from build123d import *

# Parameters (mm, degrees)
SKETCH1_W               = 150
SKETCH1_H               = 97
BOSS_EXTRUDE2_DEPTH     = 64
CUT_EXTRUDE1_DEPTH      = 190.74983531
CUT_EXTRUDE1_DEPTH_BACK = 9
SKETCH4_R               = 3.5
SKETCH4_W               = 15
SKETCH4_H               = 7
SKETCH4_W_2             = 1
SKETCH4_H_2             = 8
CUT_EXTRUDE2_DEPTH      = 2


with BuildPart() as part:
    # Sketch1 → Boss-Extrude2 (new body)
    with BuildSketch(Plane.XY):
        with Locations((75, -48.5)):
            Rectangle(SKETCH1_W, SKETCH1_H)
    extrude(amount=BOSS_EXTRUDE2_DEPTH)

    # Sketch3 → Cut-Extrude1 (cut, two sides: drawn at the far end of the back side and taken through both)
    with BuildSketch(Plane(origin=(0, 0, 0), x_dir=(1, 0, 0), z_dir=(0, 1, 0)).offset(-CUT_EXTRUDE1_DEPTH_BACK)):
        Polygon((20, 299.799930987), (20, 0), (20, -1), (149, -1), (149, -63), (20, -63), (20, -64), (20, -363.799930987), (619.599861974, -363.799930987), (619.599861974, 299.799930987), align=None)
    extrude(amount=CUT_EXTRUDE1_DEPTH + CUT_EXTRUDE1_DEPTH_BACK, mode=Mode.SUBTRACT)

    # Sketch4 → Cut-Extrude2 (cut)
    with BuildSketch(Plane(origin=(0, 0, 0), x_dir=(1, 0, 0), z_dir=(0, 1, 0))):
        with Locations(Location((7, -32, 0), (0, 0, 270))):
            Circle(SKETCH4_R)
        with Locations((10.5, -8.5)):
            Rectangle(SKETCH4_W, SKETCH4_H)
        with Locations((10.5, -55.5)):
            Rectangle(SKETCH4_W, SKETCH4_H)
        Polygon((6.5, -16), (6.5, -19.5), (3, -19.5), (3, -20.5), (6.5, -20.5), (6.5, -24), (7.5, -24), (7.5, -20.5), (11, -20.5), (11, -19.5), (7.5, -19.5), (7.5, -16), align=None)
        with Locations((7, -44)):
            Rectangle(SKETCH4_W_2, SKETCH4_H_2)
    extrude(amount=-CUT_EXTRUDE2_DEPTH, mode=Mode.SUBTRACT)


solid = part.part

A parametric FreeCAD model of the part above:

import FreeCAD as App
import Part
import Sketcher

V = App.Vector
Q = App.Units.Quantity

doc = App.newDocument("Part")
body = doc.addObject("PartDesign::Body", "Body")

# Sketch on XY plane
sketch1 = body.newObject("Sketcher::SketchObject", "Sketch")
sketch1.AttachmentSupport = (doc.getObject("XY_Plane"), [""])
sketch1.MapMode = "FlatFace"
sketch1.addGeometry([
    Part.LineSegment(V(0, 0, 0), V(0, -97, 0)),
    Part.LineSegment(V(0, -97, 0), V(150, -97, 0)),
    Part.LineSegment(V(150, -97, 0), V(150, 0, 0)),
    Part.LineSegment(V(150, 0, 0), V(0, 0, 0)),
], False)
sketch1.addConstraint([
    Sketcher.Constraint("Coincident", 0, 2, 1, 1),
    Sketcher.Constraint("Coincident", 1, 2, 2, 1),
    Sketcher.Constraint("Coincident", 2, 2, 3, 1),
    Sketcher.Constraint("Coincident", 3, 2, 0, 1),
    Sketcher.Constraint("Vertical", 0),
    Sketcher.Constraint("Horizontal", 1),
    Sketcher.Constraint("Vertical", 2),
    Sketcher.Constraint("Horizontal", 3),
    Sketcher.Constraint("Coincident", 3, 2, -1, 1),
    Sketcher.Constraint("DistanceX", 1, 1, 1, 2, Q("150 mm")),
    Sketcher.Constraint("DistanceY", 0, 2, 0, 1, Q("97 mm")),
])
pad1 = body.newObject("PartDesign::Pad", "Pad")
pad1.Profile = sketch1
pad1.Length = 64

# Sketch on XZ plane
sketch2 = body.newObject("Sketcher::SketchObject", "Sketch001")
sketch2.AttachmentSupport = (doc.getObject("XZ_Plane"), [""])
sketch2.MapMode = "FlatFace"
sketch2.addGeometry([
    Part.LineSegment(V(20, -300, 0), V(20, 1, 0)),  # 0
    Part.LineSegment(V(20, 1, 0), V(149, 1, 0)),  # 1
    Part.LineSegment(V(149, 1, 0), V(149, 63, 0)),  # 2
    Part.LineSegment(V(149, 63, 0), V(20, 63, 0)),  # 3
    Part.LineSegment(V(20, 63, 0), V(20, 364, 0)),  # 4
    Part.LineSegment(V(20, 364, 0), V(620, 364, 0)),  # 5
    Part.LineSegment(V(620, 364, 0), V(620, -300, 0)),  # 6
    Part.LineSegment(V(620, -300, 0), V(20, -300, 0)),  # 7
], False)
sketch2.addConstraint([
    Sketcher.Constraint("Coincident", 0, 2, 1, 1),
    Sketcher.Constraint("Coincident", 1, 2, 2, 1),
    Sketcher.Constraint("Coincident", 2, 2, 3, 1),
    Sketcher.Constraint("Coincident", 3, 2, 4, 1),
    Sketcher.Constraint("Coincident", 4, 2, 5, 1),
    Sketcher.Constraint("Coincident", 5, 2, 6, 1),
    Sketcher.Constraint("Coincident", 6, 2, 7, 1),
    Sketcher.Constraint("Coincident", 7, 2, 0, 1),
    Sketcher.Constraint("Vertical", 0),
    Sketcher.Constraint("Horizontal", 1),
    Sketcher.Constraint("Vertical", 2),
    Sketcher.Constraint("Horizontal", 3),
    Sketcher.Constraint("Vertical", 4),
    Sketcher.Constraint("Horizontal", 5),
    Sketcher.Constraint("Vertical", 6),
    Sketcher.Constraint("Horizontal", 7),
    Sketcher.Constraint("Vertical", 0, 2, 3, 2),
    Sketcher.Constraint("Equal", 0, 4),
    Sketcher.Constraint("DistanceX", 1, 1, 1, 2, Q("129 mm")),
    Sketcher.Constraint("DistanceY", 2, 1, 2, 2, Q("62 mm")),
    Sketcher.Constraint("DistanceX", -1, 1, 0, 2, Q("20 mm")),
    Sketcher.Constraint("DistanceY", -1, 1, 0, 2, Q("1 mm")),
    Sketcher.Constraint("DistanceX", 5, 1, 5, 2, Q("599.599862 mm")),
    Sketcher.Constraint("DistanceY", 0, 1, 0, 2, Q("300.799931 mm")),
])
pocket1 = body.newObject("PartDesign::Pocket", "Pocket")
pocket1.Profile = sketch2
pocket1.Type = "TwoLengths"
pocket1.Length = 190.749835
pocket1.Length2 = 9

# Sketch on XZ plane
sketch3 = body.newObject("Sketcher::SketchObject", "Sketch002")
sketch3.AttachmentSupport = (doc.getObject("XZ_Plane"), [""])
sketch3.MapMode = "FlatFace"
sketch3.addGeometry([
    Part.Circle(V(7, 32, 0), V(0, 0, 1), 3.5),  # 0
    Part.LineSegment(V(3, 5, 0), V(3, 12, 0)),  # 1
    Part.LineSegment(V(3, 12, 0), V(18, 12, 0)),  # 2
    Part.LineSegment(V(18, 12, 0), V(18, 5, 0)),  # 3
    Part.LineSegment(V(18, 5, 0), V(3, 5, 0)),  # 4
    Part.LineSegment(V(3, 52, 0), V(3, 59, 0)),  # 5
    Part.LineSegment(V(3, 59, 0), V(18, 59, 0)),  # 6
    Part.LineSegment(V(18, 59, 0), V(18, 52, 0)),  # 7
    Part.LineSegment(V(18, 52, 0), V(3, 52, 0)),  # 8
    Part.LineSegment(V(6.5, 16, 0), V(6.5, 19.5, 0)),  # 9
    Part.LineSegment(V(6.5, 19.5, 0), V(3, 19.5, 0)),  # 10
    Part.LineSegment(V(3, 19.5, 0), V(3, 20.5, 0)),  # 11
    Part.LineSegment(V(3, 20.5, 0), V(6.5, 20.5, 0)),  # 12
    Part.LineSegment(V(6.5, 20.5, 0), V(6.5, 24, 0)),  # 13
    Part.LineSegment(V(6.5, 24, 0), V(7.5, 24, 0)),  # 14
    Part.LineSegment(V(7.5, 24, 0), V(7.5, 20.5, 0)),  # 15
    Part.LineSegment(V(7.5, 20.5, 0), V(11, 20.5, 0)),  # 16
    Part.LineSegment(V(11, 20.5, 0), V(11, 19.5, 0)),  # 17
    Part.LineSegment(V(11, 19.5, 0), V(7.5, 19.5, 0)),  # 18
    Part.LineSegment(V(7.5, 19.5, 0), V(7.5, 16, 0)),  # 19
    Part.LineSegment(V(7.5, 16, 0), V(6.5, 16, 0)),  # 20
    Part.LineSegment(V(6.5, 40, 0), V(6.5, 48, 0)),  # 21
    Part.LineSegment(V(6.5, 48, 0), V(7.5, 48, 0)),  # 22
    Part.LineSegment(V(7.5, 48, 0), V(7.5, 40, 0)),  # 23
    Part.LineSegment(V(7.5, 40, 0), V(6.5, 40, 0)),  # 24
], False)
sketch3.addConstraint([
    Sketcher.Constraint("Coincident", 1, 2, 2, 1),
    Sketcher.Constraint("Coincident", 2, 2, 3, 1),
    Sketcher.Constraint("Coincident", 3, 2, 4, 1),
    Sketcher.Constraint("Coincident", 4, 2, 1, 1),
    Sketcher.Constraint("Coincident", 5, 2, 6, 1),
    Sketcher.Constraint("Coincident", 6, 2, 7, 1),
    Sketcher.Constraint("Coincident", 7, 2, 8, 1),
    Sketcher.Constraint("Coincident", 8, 2, 5, 1),
    Sketcher.Constraint("Coincident", 9, 2, 10, 1),
    Sketcher.Constraint("Coincident", 10, 2, 11, 1),
    Sketcher.Constraint("Coincident", 11, 2, 12, 1),
    Sketcher.Constraint("Coincident", 12, 2, 13, 1),
    Sketcher.Constraint("Coincident", 13, 2, 14, 1),
    Sketcher.Constraint("Coincident", 14, 2, 15, 1),
    Sketcher.Constraint("Coincident", 15, 2, 16, 1),
    Sketcher.Constraint("Coincident", 16, 2, 17, 1),
    Sketcher.Constraint("Coincident", 17, 2, 18, 1),
    Sketcher.Constraint("Coincident", 18, 2, 19, 1),
    Sketcher.Constraint("Coincident", 19, 2, 20, 1),
    Sketcher.Constraint("Coincident", 20, 2, 9, 1),
    Sketcher.Constraint("Coincident", 21, 2, 22, 1),
    Sketcher.Constraint("Coincident", 22, 2, 23, 1),
    Sketcher.Constraint("Coincident", 23, 2, 24, 1),
    Sketcher.Constraint("Coincident", 24, 2, 21, 1),
    Sketcher.Constraint("Vertical", 1),
    Sketcher.Constraint("Horizontal", 2),
    Sketcher.Constraint("Vertical", 3),
    Sketcher.Constraint("Horizontal", 4),
    Sketcher.Constraint("Vertical", 5),
    Sketcher.Constraint("Horizontal", 6),
    Sketcher.Constraint("Vertical", 7),
    Sketcher.Constraint("Horizontal", 8),
    Sketcher.Constraint("Vertical", 9),
    Sketcher.Constraint("Horizontal", 10),
    Sketcher.Constraint("Vertical", 11),
    Sketcher.Constraint("Horizontal", 12),
    Sketcher.Constraint("Vertical", 13),
    Sketcher.Constraint("Horizontal", 14),
    Sketcher.Constraint("Vertical", 15),
    Sketcher.Constraint("Horizontal", 16),
    Sketcher.Constraint("Vertical", 17),
    Sketcher.Constraint("Horizontal", 18),
    Sketcher.Constraint("Vertical", 19),
    Sketcher.Constraint("Horizontal", 20),
    Sketcher.Constraint("Vertical", 21),
    Sketcher.Constraint("Horizontal", 22),
    Sketcher.Constraint("Vertical", 23),
    Sketcher.Constraint("Horizontal", 24),
    Sketcher.Constraint("Horizontal", 12, 2, 15, 2),
    Sketcher.Constraint("Horizontal", 10, 2, 17, 2),
    Sketcher.Constraint("Vertical", 4, 2, 5, 2),
    Sketcher.Constraint("Vertical", 3, 2, 6, 2),
    Sketcher.Constraint("Vertical", 8, 2, 10, 2),
    Sketcher.Constraint("Vertical", 9, 2, 12, 2),
    Sketcher.Constraint("Vertical", 15, 2, 18, 2),
    Sketcher.Constraint("Vertical", 20, 2, 21, 2),
    Sketcher.Constraint("Vertical", 19, 2, 22, 2),
    Sketcher.Constraint("Equal", 12, 16),
    Sketcher.Constraint("Equal", 3, 5),
    Sketcher.Constraint("Equal", 18, 9),
    Sketcher.Constraint("Equal", 24, 11),
    Sketcher.Constraint("Equal", 9, 13),
    Sketcher.Constraint("Diameter", 0, Q("7 mm")),
    Sketcher.Constraint("DistanceX", 2, 1, 2, 2, Q("15 mm")),
    Sketcher.Constraint("DistanceX", 14, 1, 14, 2, Q("1 mm")),
    Sketcher.Constraint("DistanceY", 1, 1, 1, 2, Q("7 mm")),
    Sketcher.Constraint("DistanceY", 21, 1, 21, 2, Q("8 mm")),
    Sketcher.Constraint("DistanceX", 10, 2, 10, 1, Q("3.5 mm")),
    Sketcher.Constraint("DistanceX", -1, 1, 0, 3, Q("7 mm")),
    Sketcher.Constraint("DistanceY", -1, 1, 0, 3, Q("32 mm")),
    Sketcher.Constraint("DistanceX", -1, 1, 1, 2, Q("3 mm")),
    Sketcher.Constraint("DistanceY", -1, 1, 1, 2, Q("12 mm")),
    Sketcher.Constraint("DistanceY", -1, 1, 5, 2, Q("59 mm")),
    Sketcher.Constraint("DistanceY", -1, 1, 13, 2, Q("24 mm")),
    Sketcher.Constraint("DistanceY", -1, 1, 21, 2, Q("48 mm")),
])
pocket2 = body.newObject("PartDesign::Pocket", "Pocket001")
pocket2.Profile = sketch3
pocket2.Length = 2
pocket2.Reversed = True

doc.recompute()
